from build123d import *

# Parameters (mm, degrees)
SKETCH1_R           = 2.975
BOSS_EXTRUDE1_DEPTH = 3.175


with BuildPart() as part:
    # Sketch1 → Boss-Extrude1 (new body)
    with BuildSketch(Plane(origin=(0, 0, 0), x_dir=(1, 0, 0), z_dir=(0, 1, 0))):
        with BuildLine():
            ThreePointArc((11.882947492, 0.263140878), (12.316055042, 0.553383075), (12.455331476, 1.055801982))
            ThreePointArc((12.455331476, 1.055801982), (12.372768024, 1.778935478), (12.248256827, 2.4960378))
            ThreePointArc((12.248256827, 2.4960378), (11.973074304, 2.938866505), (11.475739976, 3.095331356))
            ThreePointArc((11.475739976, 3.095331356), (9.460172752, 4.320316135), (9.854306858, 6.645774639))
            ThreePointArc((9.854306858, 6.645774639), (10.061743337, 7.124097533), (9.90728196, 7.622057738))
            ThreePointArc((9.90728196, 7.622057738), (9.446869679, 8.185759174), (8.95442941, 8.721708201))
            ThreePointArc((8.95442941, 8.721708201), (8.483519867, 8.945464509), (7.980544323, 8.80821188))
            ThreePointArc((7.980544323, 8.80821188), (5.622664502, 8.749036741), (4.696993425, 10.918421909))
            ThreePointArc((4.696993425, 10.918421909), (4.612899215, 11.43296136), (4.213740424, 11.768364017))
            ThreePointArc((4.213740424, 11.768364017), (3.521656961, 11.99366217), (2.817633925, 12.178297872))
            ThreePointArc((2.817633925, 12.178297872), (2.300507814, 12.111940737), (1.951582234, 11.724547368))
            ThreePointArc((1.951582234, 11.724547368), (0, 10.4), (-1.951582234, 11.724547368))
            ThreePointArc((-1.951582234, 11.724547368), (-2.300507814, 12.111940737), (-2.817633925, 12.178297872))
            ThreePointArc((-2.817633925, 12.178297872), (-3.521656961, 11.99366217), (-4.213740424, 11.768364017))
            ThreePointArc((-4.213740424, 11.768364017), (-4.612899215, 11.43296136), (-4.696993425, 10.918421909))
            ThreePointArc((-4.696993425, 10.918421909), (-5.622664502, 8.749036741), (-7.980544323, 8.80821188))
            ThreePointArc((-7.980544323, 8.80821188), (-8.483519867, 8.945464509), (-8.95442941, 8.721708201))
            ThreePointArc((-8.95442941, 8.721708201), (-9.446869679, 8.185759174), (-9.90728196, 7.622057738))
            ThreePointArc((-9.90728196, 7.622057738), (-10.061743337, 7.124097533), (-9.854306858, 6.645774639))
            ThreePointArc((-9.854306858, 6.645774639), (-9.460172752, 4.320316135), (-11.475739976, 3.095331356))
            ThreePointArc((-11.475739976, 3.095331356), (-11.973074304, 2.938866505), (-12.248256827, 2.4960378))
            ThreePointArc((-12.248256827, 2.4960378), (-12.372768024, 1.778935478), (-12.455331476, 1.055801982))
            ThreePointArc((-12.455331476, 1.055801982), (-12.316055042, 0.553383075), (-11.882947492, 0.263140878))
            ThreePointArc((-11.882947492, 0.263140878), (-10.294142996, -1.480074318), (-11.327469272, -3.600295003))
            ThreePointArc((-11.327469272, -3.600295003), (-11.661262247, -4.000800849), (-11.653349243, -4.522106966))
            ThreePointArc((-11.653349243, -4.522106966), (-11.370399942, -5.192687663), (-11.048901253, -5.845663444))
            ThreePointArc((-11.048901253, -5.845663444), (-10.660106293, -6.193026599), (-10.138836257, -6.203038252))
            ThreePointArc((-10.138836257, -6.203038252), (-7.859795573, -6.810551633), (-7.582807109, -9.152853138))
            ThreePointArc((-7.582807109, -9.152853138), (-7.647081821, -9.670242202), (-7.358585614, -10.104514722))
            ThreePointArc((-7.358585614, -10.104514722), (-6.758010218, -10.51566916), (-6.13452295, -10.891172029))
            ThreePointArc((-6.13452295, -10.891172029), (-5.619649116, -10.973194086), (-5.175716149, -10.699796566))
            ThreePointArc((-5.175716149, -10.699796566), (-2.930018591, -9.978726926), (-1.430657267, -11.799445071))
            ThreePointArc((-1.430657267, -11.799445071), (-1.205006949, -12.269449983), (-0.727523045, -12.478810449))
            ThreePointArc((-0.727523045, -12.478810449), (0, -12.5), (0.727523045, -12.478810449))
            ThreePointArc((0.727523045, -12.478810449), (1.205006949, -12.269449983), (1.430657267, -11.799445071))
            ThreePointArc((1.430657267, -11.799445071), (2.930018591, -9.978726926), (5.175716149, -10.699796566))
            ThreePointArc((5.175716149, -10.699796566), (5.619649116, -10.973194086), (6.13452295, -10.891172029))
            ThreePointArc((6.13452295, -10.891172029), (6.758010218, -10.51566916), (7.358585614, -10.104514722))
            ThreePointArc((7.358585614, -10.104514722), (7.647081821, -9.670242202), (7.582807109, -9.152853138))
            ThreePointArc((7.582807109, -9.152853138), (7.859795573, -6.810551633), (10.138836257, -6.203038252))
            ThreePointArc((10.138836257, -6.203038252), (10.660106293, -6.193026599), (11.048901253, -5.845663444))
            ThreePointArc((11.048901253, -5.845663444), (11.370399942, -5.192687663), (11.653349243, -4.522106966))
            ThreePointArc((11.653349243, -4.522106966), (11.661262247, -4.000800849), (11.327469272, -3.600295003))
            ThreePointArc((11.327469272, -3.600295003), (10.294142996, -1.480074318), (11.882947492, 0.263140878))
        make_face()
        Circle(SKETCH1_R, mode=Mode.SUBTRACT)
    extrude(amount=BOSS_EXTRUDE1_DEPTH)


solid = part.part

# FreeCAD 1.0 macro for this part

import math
import FreeCAD as App
import Part
import Sketcher
from FreeCAD import Vector
Q = App.Units.Quantity

doc = App.newDocument("Part")
body = doc.addObject("PartDesign::Body", "Body")

# Sketch on XZ plane
sketch1 = body.newObject("Sketcher::SketchObject", "Sketch")
sketch1.AttachmentSupport = (doc.getObject("XZ_Plane"), [""])
sketch1.MapMode = "FlatFace"
sketch1.addGeometry([
    Part.ArcOfCircle(Part.Circle(Vector(11.7, -1, 0), Vector(0, 0, 1), 0.8), math.radians(-5), math.radians(77)),  # 0
    Part.ArcOfCircle(Part.Circle(Vector(0, 0, 0), Vector(0, 0, 1), 12.5), math.radians(-11.52), math.radians(-4.85)),  # 1
    Part.ArcOfCircle(Part.Circle(Vector(11.5, -2.3, 0), Vector(0, 0, 1), 0.8), math.radians(-93), math.radians(-12)),  # 2
    Part.ArcOfCircle(Part.Circle(Vector(11.4, -5.2, 0), Vector(0, 0, 1), 2.1), math.radians(87), math.radians(224)),  # 3
    Part.ArcOfCircle(Part.Circle(Vector(9.3, -7.2, 0), Vector(0, 0, 1), 0.8), math.radians(-38), math.radians(44)),  # 4
    Part.ArcOfCircle(Part.Circle(Vector(0, 0, 0), Vector(0, 0, 1), 12.5), math.radians(-44.25), math.radians(-37.57)),  # 5
    Part.ArcOfCircle(Part.Circle(Vector(8.4, -8.2, 0), Vector(0, 0, 1), 0.8), math.radians(-126), math.radians(-44)),  # 6
    Part.ArcOfCircle(Part.Circle(Vector(6.8, -10.5, 0), Vector(0, 0, 1), 2.1), math.radians(54), math.radians(191)),  # 7
    Part.ArcOfCircle(Part.Circle(Vector(4, -11.1, 0), Vector(0, 0, 1), 0.8), math.radians(-70), math.radians(11)),  # 8
    Part.ArcOfCircle(Part.Circle(Vector(0, 0, 0), Vector(0, 0, 1), 12.5), math.radians(-76.97), math.radians(-70.3)),  # 9
    Part.ArcOfCircle(Part.Circle(Vector(2.6, -11.4, 0), Vector(0, 0, 1), 0.8), math.radians(-158), math.radians(-77)),  # 10
    Part.ArcOfCircle(Part.Circle(Vector(0, -12.5, 0), Vector(0, 0, 1), 2.1), math.radians(22), math.radians(158)),  # 11
    Part.ArcOfCircle(Part.Circle(Vector(-2.6, -11.4, 0), Vector(0, 0, 1), 0.8), math.radians(-103), math.radians(-22)),  # 12
    Part.ArcOfCircle(Part.Circle(Vector(0, 0, 0), Vector(0, 0, 1), 12.5), math.radians(-109.7), math.radians(-103.03)),  # 13
    Part.ArcOfCircle(Part.Circle(Vector(-4, -11.1, 0), Vector(0, 0, 1), 0.8), math.radians(169), math.radians(250)),  # 14
    Part.ArcOfCircle(Part.Circle(Vector(-6.8, -10.5, 0), Vector(0, 0, 1), 2.1), math.radians(-11), math.radians(126)),  # 15
    Part.ArcOfCircle(Part.Circle(Vector(-8.4, -8.2, 0), Vector(0, 0, 1), 0.8), math.radians(-136), math.radians(-54)),  # 16
    Part.ArcOfCircle(Part.Circle(Vector(0, 0, 0), Vector(0, 0, 1), 12.5), math.radians(-142.43), math.radians(-135.75)),  # 17
    Part.ArcOfCircle(Part.Circle(Vector(-9.3, -7.2, 0), Vector(0, 0, 1), 0.8), math.radians(136), math.radians(218)),  # 18
    Part.ArcOfCircle(Part.Circle(Vector(-11.4, -5.2, 0), Vector(0, 0, 1), 2.1), math.radians(-44), math.radians(93)),  # 19
    Part.ArcOfCircle(Part.Circle(Vector(-11.5, -2.3, 0), Vector(0, 0, 1), 0.8), math.radians(-168), math.radians(-87)),  # 20
    Part.ArcOfCircle(Part.Circle(Vector(0, 0, 0), Vector(0, 0, 1), 12.5), math.radians(-175.15), math.radians(-168.48)),  # 21
    Part.ArcOfCircle(Part.Circle(Vector(-11.7, -1, 0), Vector(0, 0, 1), 0.8), math.radians(103), math.radians(185)),  # 22
    Part.ArcOfCircle(Part.Circle(Vector(-12.4, 1.8, 0), Vector(0, 0, 1), 2.1), math.radians(-77), math.radians(60)),  # 23
    Part.ArcOfCircle(Part.Circle(Vector(-11, 4.3, 0), Vector(0, 0, 1), 0.8), math.radians(159), math.radians(240)),  # 24
    Part.ArcOfCircle(Part.Circle(Vector(0, 0, 0), Vector(0, 0, 1), 12.5), math.radians(152.12), math.radians(158.79)),  # 25
    Part.ArcOfCircle(Part.Circle(Vector(-10.4, 5.5, 0), Vector(0, 0, 1), 0.8), math.radians(71), math.radians(152)),  # 26
    Part.ArcOfCircle(Part.Circle(Vector(-9.4, 8.2, 0), Vector(0, 0, 1), 2.1), math.radians(-109), math.radians(27)),  # 27
    Part.ArcOfCircle(Part.Circle(Vector(-6.9, 9.5, 0), Vector(0, 0, 1), 0.8), math.radians(126), math.radians(207)),  # 28
    Part.ArcOfCircle(Part.Circle(Vector(0, 0, 0), Vector(0, 0, 1), 12.5), math.radians(119.39), math.radians(126.06)),  # 29
    Part.ArcOfCircle(Part.Circle(Vector(-5.8, 10.2, 0), Vector(0, 0, 1), 0.7), math.radians(38), math.radians(119)),  # 30
    Part.ArcOfCircle(Part.Circle(Vector(-3.5, 12, 0), Vector(0, 0, 1), 2.1), math.radians(-142), math.radians(-5)),  # 31
    Part.ArcOfCircle(Part.Circle(Vector(-0.7, 11.7, 0), Vector(0, 0, 1), 0.7), math.radians(93), math.radians(175)),  # 32
    Part.ArcOfCircle(Part.Circle(Vector(0, 0, 0), Vector(0, 0, 1), 12.5), math.radians(86.66), math.radians(93.34)),  # 33
    Part.ArcOfCircle(Part.Circle(Vector(0.7, 11.7, 0), Vector(0, 0, 1), 0.7), math.radians(5), math.radians(87)),  # 34
    Part.ArcOfCircle(Part.Circle(Vector(3.5, 12, 0), Vector(0, 0, 1), 2.1), math.radians(-175), math.radians(-38)),  # 35
    Part.ArcOfCircle(Part.Circle(Vector(5.8, 10.2, 0), Vector(0, 0, 1), 0.7), math.radians(61), math.radians(142)),  # 36
    Part.ArcOfCircle(Part.Circle(Vector(0, 0, 0), Vector(0, 0, 1), 12.5), math.radians(53.94), math.radians(60.61)),  # 37
    Part.ArcOfCircle(Part.Circle(Vector(6.9, 9.5, 0), Vector(0, 0, 1), 0.8), math.radians(-27), math.radians(54)),  # 38
    Part.ArcOfCircle(Part.Circle(Vector(9.4, 8.2, 0), Vector(0, 0, 1), 2.1), math.radians(153), math.radians(289)),  # 39
    Part.ArcOfCircle(Part.Circle(Vector(10.4, 5.5, 0), Vector(0, 0, 1), 0.8), math.radians(28), math.radians(109)),  # 40
    Part.ArcOfCircle(Part.Circle(Vector(0, 0, 0), Vector(0, 0, 1), 12.5), math.radians(21.21), math.radians(27.88)),  # 41
    Part.ArcOfCircle(Part.Circle(Vector(11, 4.3, 0), Vector(0, 0, 1), 0.8), math.radians(-60), math.radians(21)),  # 42
    Part.ArcOfCircle(Part.Circle(Vector(12.4, 1.8, 0), Vector(0, 0, 1), 2.1), math.radians(120), math.radians(257)),  # 43
    Part.Circle(Vector(0, 0, 0), Vector(0, 0, 1), 3),  # 44
], False)
sketch1.addConstraint([
    Sketcher.Constraint("Tangent", 0, 1, 1, 2),
    Sketcher.Constraint("Tangent", 1, 1, 2, 2),
    Sketcher.Constraint("Tangent", 2, 1, 3, 1),
    Sketcher.Constraint("Tangent", 3, 2, 4, 2),
    Sketcher.Constraint("Tangent", 4, 1, 5, 2),
    Sketcher.Constraint("Tangent", 5, 1, 6, 2),
    Sketcher.Constraint("Tangent", 6, 1, 7, 1),
    Sketcher.Constraint("Tangent", 7, 2, 8, 2),
    Sketcher.Constraint("Tangent", 8, 1, 9, 2),
    Sketcher.Constraint("Tangent", 9, 1, 10, 2),
    Sketcher.Constraint("Tangent", 10, 1, 11, 1),
    Sketcher.Constraint("Tangent", 11, 2, 12, 2),
    Sketcher.Constraint("Tangent", 12, 1, 13, 2),
    Sketcher.Constraint("Tangent", 13, 1, 14, 2),
    Sketcher.Constraint("Tangent", 14, 1, 15, 1),
    Sketcher.Constraint("Tangent", 15, 2, 16, 2),
    Sketcher.Constraint("Tangent", 16, 1, 17, 2),
    Sketcher.Constraint("Tangent", 17, 1, 18, 2),
    Sketcher.Constraint("Tangent", 18, 1, 19, 1),
    Sketcher.Constraint("Tangent", 19, 2, 20, 2),
    Sketcher.Constraint("Tangent", 20, 1, 21, 2),
    Sketcher.Constraint("Tangent", 21, 1, 22, 2),
    Sketcher.Constraint("Tangent", 22, 1, 23, 1),
    Sketcher.Constraint("Tangent", 23, 2, 24, 2),
    Sketcher.Constraint("Tangent", 24, 1, 25, 2),
    Sketcher.Constraint("Tangent", 25, 1, 26, 2),
    Sketcher.Constraint("Tangent", 26, 1, 27, 1),
    Sketcher.Constraint("Tangent", 27, 2, 28, 2),
    Sketcher.Constraint("Tangent", 28, 1, 29, 2),
    Sketcher.Constraint("Tangent", 29, 1, 30, 2),
    Sketcher.Constraint("Tangent", 30, 1, 31, 1),
    Sketcher.Constraint("Tangent", 31, 2, 32, 2),
    Sketcher.Constraint("Tangent", 32, 1, 33, 2),
    Sketcher.Constraint("Tangent", 33, 1, 34, 2),
    Sketcher.Constraint("Tangent", 34, 1, 35, 1),
    Sketcher.Constraint("Tangent", 35, 2, 36, 2),
    Sketcher.Constraint("Tangent", 36, 1, 37, 2),
    Sketcher.Constraint("Tangent", 37, 1, 38, 2),
    Sketcher.Constraint("Tangent", 38, 1, 39, 1),
    Sketcher.Constraint("Tangent", 39, 2, 40, 2),
    Sketcher.Constraint("Tangent", 40, 1, 41, 2),
    Sketcher.Constraint("Tangent", 41, 1, 42, 2),
    Sketcher.Constraint("Tangent", 42, 1, 43, 1),
    Sketcher.Constraint("Tangent", 43, 2, 0, 2),
    Sketcher.Constraint("Coincident", 1, 3, -1, 1),
    Sketcher.Constraint("Coincident", 5, 3, -1, 1),
    Sketcher.Constraint("Coincident", 9, 3, -1, 1),
    Sketcher.Constraint("Coincident", 13, 3, -1, 1),
    Sketcher.Constraint("Coincident", 17, 3, -1, 1),
    Sketcher.Constraint("Coincident", 21, 3, -1, 1),
    Sketcher.Constraint("Coincident", 25, 3, -1, 1),
    Sketcher.Constraint("Coincident", 29, 3, -1, 1),
    Sketcher.Constraint("Coincident", 33, 3, -1, 1),
    Sketcher.Constraint("Coincident", 37, 3, -1, 1),
    Sketcher.Constraint("Coincident", 41, 3, -1, 1),
    Sketcher.Constraint("Coincident", 44, 3, -1, 1),
    Sketcher.Constraint("Equal", 0, 2),
    Sketcher.Constraint("Equal", 2, 4),
    Sketcher.Constraint("Equal", 1, 5),
    Sketcher.Constraint("Equal", 4, 6),
    Sketcher.Constraint("Equal", 3, 7),
    Sketcher.Constraint("Equal", 6, 8),
    Sketcher.Constraint("Equal", 5, 9),
    Sketcher.Constraint("Equal", 8, 10),
    Sketcher.Constraint("Equal", 7, 11),
    Sketcher.Constraint("Equal", 10, 12),
    Sketcher.Constraint("Equal", 9, 13),
    Sketcher.Constraint("Equal", 12, 14),
    Sketcher.Constraint("Equal", 11, 15),
    Sketcher.Constraint("Equal", 14, 16),
    Sketcher.Constraint("Equal", 13, 17),
    Sketcher.Constraint("Equal", 16, 18),
    Sketcher.Constraint("Equal", 15, 19),
    Sketcher.Constraint("Equal", 18, 20),
    Sketcher.Constraint("Equal", 17, 21),
    Sketcher.Constraint("Equal", 20, 22),
    Sketcher.Constraint("Equal", 19, 23),
    Sketcher.Constraint("Equal", 22, 24),
    Sketcher.Constraint("Equal", 21, 25),
    Sketcher.Constraint("Equal", 24, 26),
    Sketcher.Constraint("Equal", 23, 27),
    Sketcher.Constraint("Equal", 26, 28),
    Sketcher.Constraint("Equal", 25, 29),
    Sketcher.Constraint("Equal", 28, 30),
    Sketcher.Constraint("Equal", 27, 31),
    Sketcher.Constraint("Equal", 30, 32),
    Sketcher.Constraint("Equal", 29, 33),
    Sketcher.Constraint("Equal", 32, 34),
    Sketcher.Constraint("Equal", 31, 35),
    Sketcher.Constraint("Equal", 34, 36),
    Sketcher.Constraint("Equal", 33, 37),
    Sketcher.Constraint("Equal", 36, 38),
    Sketcher.Constraint("Equal", 35, 39),
    Sketcher.Constraint("Equal", 38, 40),
    Sketcher.Constraint("Equal", 37, 41),
    Sketcher.Constraint("Equal", 40, 42),
    Sketcher.Constraint("Equal", 39, 43),
    Sketcher.Constraint("Symmetric", 7, 3, 15, 3, -2),
    Sketcher.Constraint("Symmetric", 3, 3, 19, 3, -2),
    Sketcher.Constraint("Symmetric", 31, 3, 35, 3, -2),
    Sketcher.Constraint("Symmetric", 27, 3, 39, 3, -2),
    Sketcher.Constraint("Symmetric", 23, 3, 43, 3, -2),
    Sketcher.Constraint("PointOnObject", 11, 3, -2),
    Sketcher.Constraint("Radius", 1, Q("12.5 mm")),
    Sketcher.Constraint("Radius", 3, Q("2.1 mm")),
    Sketcher.Constraint("Diameter", 44, Q("5.95 mm")),
    Sketcher.Constraint("Radius", 0, Q("0.75 mm")),
    Sketcher.Constraint("DistanceY", 11, 3, -1, 1, Q("12.5 mm")),
    Sketcher.Constraint("DistanceX", -1, 1, 3, 3, Q("11.3704 mm")),
    Sketcher.Constraint("DistanceY", -1, 1, 30, 3, Q("10.237702 mm")),
    Sketcher.Constraint("DistanceY", 0, 1, -1, 1, Q("1.055802 mm")),
    Sketcher.Constraint("DistanceX", 25, 1, -1, 1, Q("11.048901 mm")),
    Sketcher.Constraint("DistanceX", -1, 1, 2, 3, Q("11.513361 mm")),
    Sketcher.Constraint("DistanceX", -1, 1, 7, 3, Q("6.75801 mm")),
    Sketcher.Constraint("DistanceY", 7, 3, -1, 1, Q("10.515669 mm")),
    Sketcher.Constraint("DistanceX", 23, 3, -1, 1, Q("12.372768 mm")),
    Sketcher.Constraint("DistanceX", 27, 3, -1, 1, Q("9.44687 mm")),
    Sketcher.Constraint("DistanceX", 32, 3, -1, 1, Q("0.683872 mm")),
])
pad1 = body.newObject("PartDesign::Pad", "Pad")
pad1.Profile = sketch1
pad1.Length = 3.175
pad1.Reversed = True

doc.recompute()
